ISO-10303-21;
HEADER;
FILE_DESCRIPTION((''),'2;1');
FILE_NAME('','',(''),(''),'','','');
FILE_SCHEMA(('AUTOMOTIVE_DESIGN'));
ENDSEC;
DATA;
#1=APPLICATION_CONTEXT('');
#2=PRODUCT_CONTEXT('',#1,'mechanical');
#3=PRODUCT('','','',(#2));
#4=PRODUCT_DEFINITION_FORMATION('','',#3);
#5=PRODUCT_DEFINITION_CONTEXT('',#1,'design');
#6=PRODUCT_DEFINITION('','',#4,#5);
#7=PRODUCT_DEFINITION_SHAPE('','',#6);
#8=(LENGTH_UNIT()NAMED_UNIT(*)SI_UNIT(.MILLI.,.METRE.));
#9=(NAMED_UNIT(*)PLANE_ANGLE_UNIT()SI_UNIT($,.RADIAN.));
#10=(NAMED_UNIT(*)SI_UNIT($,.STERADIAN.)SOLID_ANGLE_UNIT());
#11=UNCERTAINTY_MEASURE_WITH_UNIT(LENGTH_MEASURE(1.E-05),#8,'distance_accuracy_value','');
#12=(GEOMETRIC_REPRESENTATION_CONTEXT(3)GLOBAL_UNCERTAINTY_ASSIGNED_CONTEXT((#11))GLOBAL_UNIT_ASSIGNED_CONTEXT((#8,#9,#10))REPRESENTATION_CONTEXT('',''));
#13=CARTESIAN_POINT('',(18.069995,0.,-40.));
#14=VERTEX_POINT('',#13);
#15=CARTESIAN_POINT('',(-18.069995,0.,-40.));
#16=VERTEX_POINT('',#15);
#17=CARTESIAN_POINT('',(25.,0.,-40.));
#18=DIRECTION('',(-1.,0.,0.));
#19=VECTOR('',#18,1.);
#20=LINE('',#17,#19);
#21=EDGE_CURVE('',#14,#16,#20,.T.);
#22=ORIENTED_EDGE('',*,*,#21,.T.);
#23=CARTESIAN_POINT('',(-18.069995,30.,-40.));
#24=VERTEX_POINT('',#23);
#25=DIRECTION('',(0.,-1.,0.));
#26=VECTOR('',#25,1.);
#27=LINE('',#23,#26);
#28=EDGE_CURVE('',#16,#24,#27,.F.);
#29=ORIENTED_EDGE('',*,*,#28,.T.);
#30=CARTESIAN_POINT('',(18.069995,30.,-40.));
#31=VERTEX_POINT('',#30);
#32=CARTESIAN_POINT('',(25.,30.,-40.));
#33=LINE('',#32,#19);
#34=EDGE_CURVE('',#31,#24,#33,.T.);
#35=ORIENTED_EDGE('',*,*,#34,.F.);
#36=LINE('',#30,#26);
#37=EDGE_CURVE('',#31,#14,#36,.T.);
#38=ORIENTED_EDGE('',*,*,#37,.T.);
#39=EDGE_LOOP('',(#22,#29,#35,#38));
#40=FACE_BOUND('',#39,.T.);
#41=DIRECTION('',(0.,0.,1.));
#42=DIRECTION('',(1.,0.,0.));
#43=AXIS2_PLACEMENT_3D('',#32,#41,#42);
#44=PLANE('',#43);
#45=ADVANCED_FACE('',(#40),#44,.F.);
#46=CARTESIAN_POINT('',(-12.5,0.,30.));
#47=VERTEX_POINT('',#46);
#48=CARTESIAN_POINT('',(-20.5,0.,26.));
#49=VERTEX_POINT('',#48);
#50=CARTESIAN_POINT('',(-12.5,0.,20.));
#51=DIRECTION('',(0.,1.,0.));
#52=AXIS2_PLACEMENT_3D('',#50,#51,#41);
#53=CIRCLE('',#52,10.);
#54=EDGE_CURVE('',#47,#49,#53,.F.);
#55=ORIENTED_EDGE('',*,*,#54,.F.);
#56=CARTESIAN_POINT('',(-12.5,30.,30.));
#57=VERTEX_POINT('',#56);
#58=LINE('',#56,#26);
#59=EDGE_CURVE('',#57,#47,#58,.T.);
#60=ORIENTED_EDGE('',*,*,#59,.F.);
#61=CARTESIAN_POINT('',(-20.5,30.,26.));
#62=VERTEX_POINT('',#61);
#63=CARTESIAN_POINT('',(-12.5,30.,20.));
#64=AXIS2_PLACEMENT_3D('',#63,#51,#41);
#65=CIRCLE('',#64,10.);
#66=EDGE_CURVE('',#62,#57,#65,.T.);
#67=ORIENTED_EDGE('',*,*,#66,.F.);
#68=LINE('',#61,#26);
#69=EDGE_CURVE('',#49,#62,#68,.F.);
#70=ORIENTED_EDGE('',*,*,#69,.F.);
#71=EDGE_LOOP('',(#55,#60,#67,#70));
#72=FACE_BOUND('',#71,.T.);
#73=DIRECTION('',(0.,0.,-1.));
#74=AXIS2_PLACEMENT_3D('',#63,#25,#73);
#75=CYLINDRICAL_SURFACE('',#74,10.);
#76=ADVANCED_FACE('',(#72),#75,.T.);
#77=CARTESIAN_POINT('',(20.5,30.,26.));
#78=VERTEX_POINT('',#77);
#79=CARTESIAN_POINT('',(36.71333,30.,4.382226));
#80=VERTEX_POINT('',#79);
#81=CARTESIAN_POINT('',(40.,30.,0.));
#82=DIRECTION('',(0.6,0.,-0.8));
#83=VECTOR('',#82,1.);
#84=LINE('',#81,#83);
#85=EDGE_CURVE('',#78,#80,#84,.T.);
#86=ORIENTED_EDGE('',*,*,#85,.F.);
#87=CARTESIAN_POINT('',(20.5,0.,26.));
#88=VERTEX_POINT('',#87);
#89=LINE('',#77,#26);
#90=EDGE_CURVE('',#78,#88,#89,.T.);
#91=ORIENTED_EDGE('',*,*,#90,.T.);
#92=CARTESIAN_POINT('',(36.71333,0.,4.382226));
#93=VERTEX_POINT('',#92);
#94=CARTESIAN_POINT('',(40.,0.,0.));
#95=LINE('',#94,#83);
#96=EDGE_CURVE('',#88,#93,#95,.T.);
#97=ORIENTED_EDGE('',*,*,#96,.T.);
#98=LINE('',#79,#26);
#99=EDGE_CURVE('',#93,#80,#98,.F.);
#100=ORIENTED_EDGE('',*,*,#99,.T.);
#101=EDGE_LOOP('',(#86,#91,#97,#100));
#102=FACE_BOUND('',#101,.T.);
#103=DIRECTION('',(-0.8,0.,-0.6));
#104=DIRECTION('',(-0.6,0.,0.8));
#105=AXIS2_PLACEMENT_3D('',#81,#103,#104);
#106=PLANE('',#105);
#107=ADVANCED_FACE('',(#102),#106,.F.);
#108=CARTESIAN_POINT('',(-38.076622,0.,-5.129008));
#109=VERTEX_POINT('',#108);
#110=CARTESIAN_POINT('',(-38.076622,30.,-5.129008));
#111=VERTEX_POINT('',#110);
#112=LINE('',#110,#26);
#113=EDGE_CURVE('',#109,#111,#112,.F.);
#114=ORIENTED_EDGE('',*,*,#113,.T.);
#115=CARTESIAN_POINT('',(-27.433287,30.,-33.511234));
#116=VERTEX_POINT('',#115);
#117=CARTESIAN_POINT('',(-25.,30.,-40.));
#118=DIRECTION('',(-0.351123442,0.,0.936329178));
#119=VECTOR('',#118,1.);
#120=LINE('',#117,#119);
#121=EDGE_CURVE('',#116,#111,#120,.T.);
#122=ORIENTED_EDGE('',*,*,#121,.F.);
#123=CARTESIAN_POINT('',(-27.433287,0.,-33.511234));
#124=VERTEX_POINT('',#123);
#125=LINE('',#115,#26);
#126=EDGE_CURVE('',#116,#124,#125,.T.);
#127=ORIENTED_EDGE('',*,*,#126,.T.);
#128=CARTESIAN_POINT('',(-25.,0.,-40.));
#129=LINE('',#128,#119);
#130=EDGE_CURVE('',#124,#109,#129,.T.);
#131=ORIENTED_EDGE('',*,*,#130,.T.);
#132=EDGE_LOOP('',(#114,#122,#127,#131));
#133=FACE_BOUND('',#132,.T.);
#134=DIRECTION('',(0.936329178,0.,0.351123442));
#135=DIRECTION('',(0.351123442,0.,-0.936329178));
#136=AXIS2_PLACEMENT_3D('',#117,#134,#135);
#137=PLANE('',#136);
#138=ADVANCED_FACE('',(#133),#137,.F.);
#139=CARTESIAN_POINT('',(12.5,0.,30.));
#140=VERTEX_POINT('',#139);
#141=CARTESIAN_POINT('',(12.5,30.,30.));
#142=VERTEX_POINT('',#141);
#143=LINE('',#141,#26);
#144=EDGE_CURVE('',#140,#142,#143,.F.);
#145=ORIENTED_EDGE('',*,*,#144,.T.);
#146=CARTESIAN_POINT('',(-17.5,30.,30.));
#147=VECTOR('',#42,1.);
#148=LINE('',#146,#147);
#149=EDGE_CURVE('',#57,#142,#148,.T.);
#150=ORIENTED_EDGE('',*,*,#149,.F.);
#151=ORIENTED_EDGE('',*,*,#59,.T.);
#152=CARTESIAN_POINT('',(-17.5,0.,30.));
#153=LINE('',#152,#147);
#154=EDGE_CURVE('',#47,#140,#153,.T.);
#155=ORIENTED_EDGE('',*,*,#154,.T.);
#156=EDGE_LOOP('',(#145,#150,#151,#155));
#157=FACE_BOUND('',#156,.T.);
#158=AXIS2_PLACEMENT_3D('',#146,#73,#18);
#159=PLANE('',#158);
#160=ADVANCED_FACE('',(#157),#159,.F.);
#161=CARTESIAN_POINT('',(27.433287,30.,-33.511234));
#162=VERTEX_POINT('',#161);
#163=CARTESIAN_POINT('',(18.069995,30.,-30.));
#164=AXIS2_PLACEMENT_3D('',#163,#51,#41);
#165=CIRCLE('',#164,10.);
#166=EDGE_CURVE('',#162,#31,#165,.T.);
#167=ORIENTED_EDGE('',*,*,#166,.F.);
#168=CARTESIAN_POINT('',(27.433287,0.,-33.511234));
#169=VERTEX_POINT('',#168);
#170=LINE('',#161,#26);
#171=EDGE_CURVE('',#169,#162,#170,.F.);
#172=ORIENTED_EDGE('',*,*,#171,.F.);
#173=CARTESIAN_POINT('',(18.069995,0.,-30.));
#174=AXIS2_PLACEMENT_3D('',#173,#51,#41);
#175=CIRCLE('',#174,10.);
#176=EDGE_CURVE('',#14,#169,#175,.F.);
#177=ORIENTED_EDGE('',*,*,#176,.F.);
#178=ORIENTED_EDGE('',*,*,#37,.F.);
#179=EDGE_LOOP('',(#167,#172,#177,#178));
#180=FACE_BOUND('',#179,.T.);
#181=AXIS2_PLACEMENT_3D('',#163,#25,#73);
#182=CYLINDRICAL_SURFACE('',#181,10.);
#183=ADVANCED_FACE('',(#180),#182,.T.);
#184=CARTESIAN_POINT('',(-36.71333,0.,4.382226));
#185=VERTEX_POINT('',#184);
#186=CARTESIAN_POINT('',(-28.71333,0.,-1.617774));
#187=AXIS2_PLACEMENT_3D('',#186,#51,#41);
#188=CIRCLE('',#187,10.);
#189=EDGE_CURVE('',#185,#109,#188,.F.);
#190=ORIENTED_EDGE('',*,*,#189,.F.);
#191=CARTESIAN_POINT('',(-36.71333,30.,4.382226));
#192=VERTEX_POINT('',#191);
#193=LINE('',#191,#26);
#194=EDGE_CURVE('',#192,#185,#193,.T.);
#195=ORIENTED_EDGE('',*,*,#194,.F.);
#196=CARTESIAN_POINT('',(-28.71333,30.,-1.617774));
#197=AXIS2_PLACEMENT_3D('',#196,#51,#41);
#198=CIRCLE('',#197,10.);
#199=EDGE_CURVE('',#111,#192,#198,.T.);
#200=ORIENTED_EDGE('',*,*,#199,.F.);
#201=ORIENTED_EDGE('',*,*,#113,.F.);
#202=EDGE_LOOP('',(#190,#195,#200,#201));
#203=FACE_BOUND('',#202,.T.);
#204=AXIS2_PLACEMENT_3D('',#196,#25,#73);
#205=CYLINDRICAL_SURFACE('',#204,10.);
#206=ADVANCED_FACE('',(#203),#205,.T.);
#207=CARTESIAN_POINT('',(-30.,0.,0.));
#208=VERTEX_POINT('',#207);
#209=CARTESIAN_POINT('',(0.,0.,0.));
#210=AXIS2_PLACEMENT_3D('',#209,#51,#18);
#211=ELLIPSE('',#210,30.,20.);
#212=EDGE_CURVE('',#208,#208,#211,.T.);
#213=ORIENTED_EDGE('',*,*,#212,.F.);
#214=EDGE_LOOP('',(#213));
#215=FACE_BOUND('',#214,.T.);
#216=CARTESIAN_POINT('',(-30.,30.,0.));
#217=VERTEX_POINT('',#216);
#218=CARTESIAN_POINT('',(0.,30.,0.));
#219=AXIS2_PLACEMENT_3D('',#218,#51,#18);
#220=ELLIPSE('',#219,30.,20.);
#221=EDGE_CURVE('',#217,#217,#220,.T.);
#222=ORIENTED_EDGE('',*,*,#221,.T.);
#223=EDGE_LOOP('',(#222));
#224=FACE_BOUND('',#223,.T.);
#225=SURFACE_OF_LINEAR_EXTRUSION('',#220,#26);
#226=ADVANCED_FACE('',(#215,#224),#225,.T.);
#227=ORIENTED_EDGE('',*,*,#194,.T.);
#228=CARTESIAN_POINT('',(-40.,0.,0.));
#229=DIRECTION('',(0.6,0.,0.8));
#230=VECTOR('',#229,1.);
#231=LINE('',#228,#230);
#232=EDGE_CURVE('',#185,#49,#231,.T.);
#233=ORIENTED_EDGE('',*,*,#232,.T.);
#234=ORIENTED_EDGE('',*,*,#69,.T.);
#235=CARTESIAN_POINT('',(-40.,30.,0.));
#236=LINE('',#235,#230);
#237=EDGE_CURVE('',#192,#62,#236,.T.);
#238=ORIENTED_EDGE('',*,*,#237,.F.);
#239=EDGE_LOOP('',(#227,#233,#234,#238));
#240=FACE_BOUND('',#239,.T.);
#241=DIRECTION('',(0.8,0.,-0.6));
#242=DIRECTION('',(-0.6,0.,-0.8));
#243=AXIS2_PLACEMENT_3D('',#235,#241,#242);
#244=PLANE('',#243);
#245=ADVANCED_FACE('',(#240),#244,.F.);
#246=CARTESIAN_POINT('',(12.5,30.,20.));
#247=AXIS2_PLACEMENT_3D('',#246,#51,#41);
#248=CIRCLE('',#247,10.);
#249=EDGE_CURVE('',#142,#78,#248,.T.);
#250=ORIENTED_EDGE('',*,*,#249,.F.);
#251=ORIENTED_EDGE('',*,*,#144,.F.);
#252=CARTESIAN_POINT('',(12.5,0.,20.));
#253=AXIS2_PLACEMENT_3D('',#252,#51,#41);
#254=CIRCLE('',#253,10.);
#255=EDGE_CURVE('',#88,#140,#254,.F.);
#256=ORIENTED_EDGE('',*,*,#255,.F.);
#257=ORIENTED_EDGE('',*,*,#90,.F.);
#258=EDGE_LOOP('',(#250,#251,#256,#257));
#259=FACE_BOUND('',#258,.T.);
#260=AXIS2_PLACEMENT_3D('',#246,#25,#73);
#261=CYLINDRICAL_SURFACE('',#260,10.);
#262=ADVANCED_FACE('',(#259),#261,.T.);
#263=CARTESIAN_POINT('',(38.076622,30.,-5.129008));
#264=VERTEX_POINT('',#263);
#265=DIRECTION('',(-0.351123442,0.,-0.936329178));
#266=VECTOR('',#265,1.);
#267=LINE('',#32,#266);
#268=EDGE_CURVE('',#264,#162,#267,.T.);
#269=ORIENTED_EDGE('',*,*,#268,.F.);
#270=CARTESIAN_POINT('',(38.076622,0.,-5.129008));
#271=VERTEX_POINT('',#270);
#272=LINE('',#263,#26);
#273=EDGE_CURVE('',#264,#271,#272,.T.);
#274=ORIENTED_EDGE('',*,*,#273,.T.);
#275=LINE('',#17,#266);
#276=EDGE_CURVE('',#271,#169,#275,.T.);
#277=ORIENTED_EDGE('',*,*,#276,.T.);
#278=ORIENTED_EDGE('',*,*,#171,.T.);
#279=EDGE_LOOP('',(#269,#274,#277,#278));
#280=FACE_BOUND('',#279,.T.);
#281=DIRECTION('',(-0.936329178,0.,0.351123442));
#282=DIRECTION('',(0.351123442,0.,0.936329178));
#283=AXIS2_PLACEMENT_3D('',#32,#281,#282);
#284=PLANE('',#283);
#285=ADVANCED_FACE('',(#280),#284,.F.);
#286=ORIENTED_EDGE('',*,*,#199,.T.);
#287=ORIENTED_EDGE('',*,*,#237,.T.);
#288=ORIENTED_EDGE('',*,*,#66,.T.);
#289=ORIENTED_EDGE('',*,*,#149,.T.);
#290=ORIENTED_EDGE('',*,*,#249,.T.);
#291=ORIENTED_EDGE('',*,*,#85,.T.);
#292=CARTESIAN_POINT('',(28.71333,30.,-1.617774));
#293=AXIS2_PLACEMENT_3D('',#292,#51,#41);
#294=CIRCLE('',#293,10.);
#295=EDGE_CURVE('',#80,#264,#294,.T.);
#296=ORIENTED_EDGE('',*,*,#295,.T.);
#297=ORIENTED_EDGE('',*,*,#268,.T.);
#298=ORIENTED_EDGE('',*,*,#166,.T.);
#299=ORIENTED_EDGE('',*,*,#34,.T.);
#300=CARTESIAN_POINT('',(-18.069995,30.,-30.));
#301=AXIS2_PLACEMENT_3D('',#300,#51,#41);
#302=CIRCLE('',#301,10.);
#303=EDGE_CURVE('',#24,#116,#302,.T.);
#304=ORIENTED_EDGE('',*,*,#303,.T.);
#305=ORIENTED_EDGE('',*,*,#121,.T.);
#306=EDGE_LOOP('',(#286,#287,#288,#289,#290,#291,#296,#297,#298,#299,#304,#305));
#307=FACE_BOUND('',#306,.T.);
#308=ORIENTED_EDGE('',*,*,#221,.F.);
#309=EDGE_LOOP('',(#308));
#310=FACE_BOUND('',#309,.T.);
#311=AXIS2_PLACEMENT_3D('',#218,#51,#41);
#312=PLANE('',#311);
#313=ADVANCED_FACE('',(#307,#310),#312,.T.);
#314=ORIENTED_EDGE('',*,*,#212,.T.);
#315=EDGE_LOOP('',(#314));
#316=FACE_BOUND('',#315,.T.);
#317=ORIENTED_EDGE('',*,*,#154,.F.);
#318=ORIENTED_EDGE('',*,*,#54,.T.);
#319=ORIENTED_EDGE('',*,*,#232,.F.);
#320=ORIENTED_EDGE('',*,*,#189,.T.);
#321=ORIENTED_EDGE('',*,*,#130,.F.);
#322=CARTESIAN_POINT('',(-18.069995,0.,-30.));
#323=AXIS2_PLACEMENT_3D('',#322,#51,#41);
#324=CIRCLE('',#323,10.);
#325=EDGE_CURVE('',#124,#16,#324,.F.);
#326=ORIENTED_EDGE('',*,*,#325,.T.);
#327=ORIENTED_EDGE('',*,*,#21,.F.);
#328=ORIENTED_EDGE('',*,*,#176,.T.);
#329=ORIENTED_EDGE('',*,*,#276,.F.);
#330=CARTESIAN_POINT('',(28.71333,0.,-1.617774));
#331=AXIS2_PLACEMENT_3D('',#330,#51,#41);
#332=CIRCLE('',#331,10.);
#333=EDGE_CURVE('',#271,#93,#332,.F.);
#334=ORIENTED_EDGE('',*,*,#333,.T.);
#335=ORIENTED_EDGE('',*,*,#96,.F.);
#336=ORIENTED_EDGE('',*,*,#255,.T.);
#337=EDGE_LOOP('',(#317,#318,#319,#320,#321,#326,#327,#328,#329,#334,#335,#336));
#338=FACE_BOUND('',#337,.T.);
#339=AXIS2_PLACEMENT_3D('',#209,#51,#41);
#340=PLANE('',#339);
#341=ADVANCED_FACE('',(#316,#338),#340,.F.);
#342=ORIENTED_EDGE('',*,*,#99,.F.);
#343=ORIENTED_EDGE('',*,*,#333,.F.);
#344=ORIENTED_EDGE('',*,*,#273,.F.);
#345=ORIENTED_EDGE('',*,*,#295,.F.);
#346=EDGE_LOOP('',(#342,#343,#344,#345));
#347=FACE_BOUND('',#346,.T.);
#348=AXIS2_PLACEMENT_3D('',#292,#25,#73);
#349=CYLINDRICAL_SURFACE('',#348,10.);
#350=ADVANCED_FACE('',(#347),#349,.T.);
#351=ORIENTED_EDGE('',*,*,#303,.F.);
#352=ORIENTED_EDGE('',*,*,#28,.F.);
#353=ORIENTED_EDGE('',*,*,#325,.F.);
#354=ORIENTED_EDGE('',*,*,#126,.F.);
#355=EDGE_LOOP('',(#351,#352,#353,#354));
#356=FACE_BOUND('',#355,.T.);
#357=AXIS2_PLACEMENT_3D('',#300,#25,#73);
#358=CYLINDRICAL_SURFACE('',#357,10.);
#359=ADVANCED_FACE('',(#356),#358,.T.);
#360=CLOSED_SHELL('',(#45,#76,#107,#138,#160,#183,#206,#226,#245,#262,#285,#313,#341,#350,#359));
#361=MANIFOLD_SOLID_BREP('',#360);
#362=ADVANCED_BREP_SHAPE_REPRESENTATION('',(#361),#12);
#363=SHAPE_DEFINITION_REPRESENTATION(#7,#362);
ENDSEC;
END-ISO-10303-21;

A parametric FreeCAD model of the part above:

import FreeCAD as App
import Part
import Sketcher
from FreeCAD import Vector
Q = App.Units.Quantity


def edges_at(feature, points):
    """Names of the edges that pass closest to the given points."""
    edges = feature.Shape.Edges
    near = lambda p: min(range(len(edges)), key=lambda i: edges[i].distToShape(Part.Vertex(*p))[0])
    return sorted({f"Edge{near(p) + 1}" for p in points})


def add_polygon(sketch, points):
    """Adds a closed chain of lines whose ends are joined by coincident constraints."""
    first, n = sketch.GeometryCount, len(points)
    for a, b in zip(points, points[1:] + points[:1]):
        sketch.addGeometry(Part.LineSegment(App.Vector(*a, 0), App.Vector(*b, 0)), False)
    for i in range(n):
        sketch.addConstraint(Sketcher.Constraint("Coincident", first + i, 2, first + (i + 1) % n, 1))

doc = App.newDocument("Part")
params = doc.addObject("Spreadsheet::Sheet", "Params")
for row, (alias, value) in enumerate([
    ("sketch1_width", "50 mm"),
    ("sketch1_width2", "35 mm"),
    ("pad1_length", "30 mm"),
    ("fillet_radius", "10 mm"),
], start=1):
    params.set(f"A{row}", alias)
    params.set(f"B{row}", "=" + value)
    params.setAlias(f"B{row}", alias)

body = doc.addObject("PartDesign::Body", "Body")

# Sketch on XZ plane
sketch1 = body.newObject("Sketcher::SketchObject", "Sketch")
sketch1.AttachmentSupport = (doc.getObject("XZ_Plane"), [""])
sketch1.MapMode = "FlatFace"
add_polygon(sketch1, [(25, -40), (-25, -40), (-40, 0), (-17.5, 30), (17.5, 30), (40, 0)])  # lines 0-5
sketch1.addGeometry(Part.Ellipse(Vector(-30, 0, 0), Vector(0, -20, 0), Vector(0, 0, 0)), False)  # 6
sketch1.addConstraint([
    Sketcher.Constraint("Block", 6),
    Sketcher.Constraint("Horizontal", 0),
    Sketcher.Constraint("Horizontal", 3),
    Sketcher.Constraint("Symmetric", 1, 2, 4, 2, -1, 1),
    Sketcher.Constraint("PointOnObject", 1, 2, -1),
    Sketcher.Constraint("Equal", 2, 4),
    Sketcher.Constraint("Equal", 1, 5),
    Sketcher.Constraint("DistanceX", 0, 2, 0, 1, Q("50 mm")),
    Sketcher.Constraint("DistanceX", 3, 1, 3, 2, Q("35 mm")),
    Sketcher.Constraint("DistanceY", 0, 2, -1, 1, Q("40 mm")),
    Sketcher.Constraint("DistanceX", 1, 2, -1, 1, Q("40 mm")),
    Sketcher.Constraint("DistanceY", -1, 1, 2, 2, Q("30 mm")),
])
sketch1.setExpression("Constraints[13]", "Params.sketch1_width")
sketch1.setExpression("Constraints[14]", "Params.sketch1_width2")
pad1 = body.newObject("PartDesign::Pad", "Pad")
pad1.Profile = sketch1
pad1.setExpression("Length", "Params.pad1_length")
pad1.Reversed = True
doc.recompute()

fillet = body.newObject("PartDesign::Fillet", "Fillet")
fillet.Base = (pad1, edges_at(pad1, [
    (-25, 15, -40),
    (25, 15, -40),
    (40, 15, 0),
    (17.5, 15, 30),
    (-17.5, 15, 30),
    (-40, 15, 0),
]))
fillet.setExpression("Radius", "Params.fillet_radius")

doc.recompute()
